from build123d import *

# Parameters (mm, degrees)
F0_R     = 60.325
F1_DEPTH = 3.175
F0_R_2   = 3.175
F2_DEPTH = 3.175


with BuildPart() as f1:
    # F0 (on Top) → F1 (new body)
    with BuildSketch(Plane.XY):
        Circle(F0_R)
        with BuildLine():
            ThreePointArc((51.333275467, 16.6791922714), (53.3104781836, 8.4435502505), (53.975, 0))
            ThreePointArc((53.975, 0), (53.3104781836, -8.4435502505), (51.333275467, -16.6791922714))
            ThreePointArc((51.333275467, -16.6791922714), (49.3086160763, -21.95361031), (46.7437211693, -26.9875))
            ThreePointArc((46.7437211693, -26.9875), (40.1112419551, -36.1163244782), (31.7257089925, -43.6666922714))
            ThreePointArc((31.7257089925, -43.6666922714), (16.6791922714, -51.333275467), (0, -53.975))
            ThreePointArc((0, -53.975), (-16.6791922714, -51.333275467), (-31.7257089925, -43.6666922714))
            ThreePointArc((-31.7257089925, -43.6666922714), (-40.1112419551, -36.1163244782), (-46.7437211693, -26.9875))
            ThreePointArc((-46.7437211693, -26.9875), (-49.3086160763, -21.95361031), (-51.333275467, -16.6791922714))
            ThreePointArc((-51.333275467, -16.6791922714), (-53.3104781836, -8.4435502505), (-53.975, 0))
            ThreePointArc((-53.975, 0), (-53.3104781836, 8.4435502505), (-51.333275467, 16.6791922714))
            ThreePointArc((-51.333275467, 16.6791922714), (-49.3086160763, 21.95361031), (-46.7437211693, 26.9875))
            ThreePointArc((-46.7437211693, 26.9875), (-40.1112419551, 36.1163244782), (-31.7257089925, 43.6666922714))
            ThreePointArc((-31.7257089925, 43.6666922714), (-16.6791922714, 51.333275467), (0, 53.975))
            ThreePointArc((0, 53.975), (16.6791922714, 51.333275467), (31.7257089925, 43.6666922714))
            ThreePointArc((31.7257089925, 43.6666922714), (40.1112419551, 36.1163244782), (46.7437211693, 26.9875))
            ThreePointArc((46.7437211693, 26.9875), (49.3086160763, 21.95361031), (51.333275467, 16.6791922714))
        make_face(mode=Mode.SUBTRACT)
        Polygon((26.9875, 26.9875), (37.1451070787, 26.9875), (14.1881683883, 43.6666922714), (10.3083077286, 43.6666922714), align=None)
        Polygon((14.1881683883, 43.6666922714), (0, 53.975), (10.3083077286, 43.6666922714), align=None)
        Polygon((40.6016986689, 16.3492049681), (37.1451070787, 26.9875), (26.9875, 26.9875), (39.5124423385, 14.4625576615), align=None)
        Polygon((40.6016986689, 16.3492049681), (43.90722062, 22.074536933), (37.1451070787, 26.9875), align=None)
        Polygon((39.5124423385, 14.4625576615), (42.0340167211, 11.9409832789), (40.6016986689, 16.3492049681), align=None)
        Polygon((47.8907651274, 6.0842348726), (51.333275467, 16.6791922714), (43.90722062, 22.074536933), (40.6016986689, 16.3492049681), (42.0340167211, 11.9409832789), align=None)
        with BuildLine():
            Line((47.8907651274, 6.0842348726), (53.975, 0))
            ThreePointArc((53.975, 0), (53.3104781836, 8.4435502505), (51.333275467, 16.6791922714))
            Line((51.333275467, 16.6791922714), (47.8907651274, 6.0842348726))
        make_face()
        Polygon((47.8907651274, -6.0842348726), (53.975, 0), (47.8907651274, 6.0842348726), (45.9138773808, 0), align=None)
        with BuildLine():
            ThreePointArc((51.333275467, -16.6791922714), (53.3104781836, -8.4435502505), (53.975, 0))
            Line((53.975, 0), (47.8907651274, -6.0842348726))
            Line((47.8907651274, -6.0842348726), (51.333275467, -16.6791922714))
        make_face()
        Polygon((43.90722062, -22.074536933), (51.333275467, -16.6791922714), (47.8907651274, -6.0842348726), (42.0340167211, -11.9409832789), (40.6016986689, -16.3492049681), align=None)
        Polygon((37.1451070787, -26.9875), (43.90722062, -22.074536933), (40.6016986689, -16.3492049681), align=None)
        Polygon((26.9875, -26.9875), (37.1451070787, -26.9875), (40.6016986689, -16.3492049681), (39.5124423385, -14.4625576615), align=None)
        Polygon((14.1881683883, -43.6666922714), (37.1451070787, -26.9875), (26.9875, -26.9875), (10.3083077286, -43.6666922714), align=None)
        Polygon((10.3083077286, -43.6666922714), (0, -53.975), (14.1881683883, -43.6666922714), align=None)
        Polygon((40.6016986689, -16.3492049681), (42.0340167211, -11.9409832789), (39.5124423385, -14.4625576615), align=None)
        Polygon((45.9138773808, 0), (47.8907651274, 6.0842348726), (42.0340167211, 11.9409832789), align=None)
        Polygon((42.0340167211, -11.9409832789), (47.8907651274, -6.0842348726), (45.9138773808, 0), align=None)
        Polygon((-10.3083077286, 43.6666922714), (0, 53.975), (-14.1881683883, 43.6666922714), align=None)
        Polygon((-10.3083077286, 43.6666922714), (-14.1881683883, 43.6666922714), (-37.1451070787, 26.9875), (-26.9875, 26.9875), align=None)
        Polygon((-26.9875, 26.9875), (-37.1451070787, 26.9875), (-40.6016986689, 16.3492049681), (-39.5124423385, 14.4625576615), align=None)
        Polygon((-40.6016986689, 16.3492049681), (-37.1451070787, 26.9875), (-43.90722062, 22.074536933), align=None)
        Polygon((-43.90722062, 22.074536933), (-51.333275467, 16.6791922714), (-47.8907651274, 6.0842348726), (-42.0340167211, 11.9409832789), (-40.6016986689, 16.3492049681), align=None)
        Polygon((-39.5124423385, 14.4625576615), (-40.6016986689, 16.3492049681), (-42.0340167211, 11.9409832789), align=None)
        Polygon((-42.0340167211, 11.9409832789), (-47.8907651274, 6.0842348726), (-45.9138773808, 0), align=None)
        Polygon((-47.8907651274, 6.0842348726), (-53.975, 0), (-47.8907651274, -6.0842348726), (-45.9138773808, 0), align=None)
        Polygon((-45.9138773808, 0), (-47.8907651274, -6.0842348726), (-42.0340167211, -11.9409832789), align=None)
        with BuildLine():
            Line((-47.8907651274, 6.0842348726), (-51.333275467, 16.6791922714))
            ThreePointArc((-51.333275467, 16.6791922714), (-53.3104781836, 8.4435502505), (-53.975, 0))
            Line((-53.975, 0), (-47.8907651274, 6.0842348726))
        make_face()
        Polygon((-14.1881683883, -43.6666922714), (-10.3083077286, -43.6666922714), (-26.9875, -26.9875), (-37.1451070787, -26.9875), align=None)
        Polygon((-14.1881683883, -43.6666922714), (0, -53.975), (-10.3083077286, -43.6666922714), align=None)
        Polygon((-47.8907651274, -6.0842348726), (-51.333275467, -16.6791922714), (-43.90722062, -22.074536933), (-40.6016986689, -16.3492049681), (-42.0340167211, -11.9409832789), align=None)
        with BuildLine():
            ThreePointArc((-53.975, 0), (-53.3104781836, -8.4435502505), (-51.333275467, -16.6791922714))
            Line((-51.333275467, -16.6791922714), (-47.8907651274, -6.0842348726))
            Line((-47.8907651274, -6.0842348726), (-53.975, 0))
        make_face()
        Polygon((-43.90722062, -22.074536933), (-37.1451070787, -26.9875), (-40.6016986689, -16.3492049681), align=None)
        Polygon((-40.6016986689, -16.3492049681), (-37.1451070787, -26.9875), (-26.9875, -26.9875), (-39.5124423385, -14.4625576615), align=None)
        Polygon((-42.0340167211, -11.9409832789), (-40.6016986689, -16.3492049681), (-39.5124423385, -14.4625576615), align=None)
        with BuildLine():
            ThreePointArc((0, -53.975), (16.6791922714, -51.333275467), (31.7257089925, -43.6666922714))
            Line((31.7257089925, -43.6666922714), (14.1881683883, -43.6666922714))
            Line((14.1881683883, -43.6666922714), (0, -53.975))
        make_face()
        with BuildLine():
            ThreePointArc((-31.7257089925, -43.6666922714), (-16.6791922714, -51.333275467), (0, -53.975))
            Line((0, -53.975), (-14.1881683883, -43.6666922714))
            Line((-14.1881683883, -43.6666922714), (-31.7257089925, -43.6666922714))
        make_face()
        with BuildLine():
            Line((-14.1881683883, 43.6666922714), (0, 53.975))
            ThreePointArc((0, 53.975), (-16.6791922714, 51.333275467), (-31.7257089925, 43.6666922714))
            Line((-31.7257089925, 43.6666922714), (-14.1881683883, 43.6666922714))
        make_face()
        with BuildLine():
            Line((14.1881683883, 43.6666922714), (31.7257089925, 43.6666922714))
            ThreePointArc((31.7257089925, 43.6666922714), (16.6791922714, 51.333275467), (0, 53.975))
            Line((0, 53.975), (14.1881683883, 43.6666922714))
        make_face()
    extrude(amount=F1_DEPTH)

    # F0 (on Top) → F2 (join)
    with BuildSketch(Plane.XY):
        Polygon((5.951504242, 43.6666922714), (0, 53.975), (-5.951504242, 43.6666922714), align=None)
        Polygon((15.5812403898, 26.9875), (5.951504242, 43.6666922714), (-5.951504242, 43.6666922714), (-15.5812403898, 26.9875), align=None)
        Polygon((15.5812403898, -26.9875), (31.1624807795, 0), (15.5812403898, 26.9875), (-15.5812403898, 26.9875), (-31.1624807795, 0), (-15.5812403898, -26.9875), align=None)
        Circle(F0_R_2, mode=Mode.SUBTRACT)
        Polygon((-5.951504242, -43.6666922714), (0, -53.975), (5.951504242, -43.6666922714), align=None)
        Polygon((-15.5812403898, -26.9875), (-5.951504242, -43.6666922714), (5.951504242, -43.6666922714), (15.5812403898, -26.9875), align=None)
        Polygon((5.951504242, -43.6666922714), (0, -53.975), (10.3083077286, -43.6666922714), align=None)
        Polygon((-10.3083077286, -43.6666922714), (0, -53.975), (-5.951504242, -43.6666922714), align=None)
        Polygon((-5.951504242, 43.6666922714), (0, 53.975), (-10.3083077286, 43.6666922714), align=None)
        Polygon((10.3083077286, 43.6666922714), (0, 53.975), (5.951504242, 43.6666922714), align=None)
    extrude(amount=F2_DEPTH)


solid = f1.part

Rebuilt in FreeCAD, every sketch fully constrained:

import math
import FreeCAD as App
import Part
import Sketcher
from FreeCAD import Vector
Q = App.Units.Quantity


def add_polygon(sketch, points):
    """Adds a closed chain of lines whose ends are joined by coincident constraints."""
    first, n = sketch.GeometryCount, len(points)
    for a, b in zip(points, points[1:] + points[:1]):
        sketch.addGeometry(Part.LineSegment(App.Vector(*a, 0), App.Vector(*b, 0)), False)
    for i in range(n):
        sketch.addConstraint(Sketcher.Constraint("Coincident", first + i, 2, first + (i + 1) % n, 1))

doc = App.newDocument("Part")
body = doc.addObject("PartDesign::Body", "Body")

# Sketch on XY plane
sketch1 = doc.addObject("Sketcher::SketchObject", "Sketch")
body.addObject(sketch1)
sketch1.AttachmentSupport = (doc.XY_Plane, [""])
sketch1.MapMode = "FlatFace"
sketch1.addGeometry(Part.Circle(Vector(0, 0, 0), Vector(0, 0, 1), 60), False)  # 0
sketch1.addGeometry(Part.LineSegment(Vector(-37, -27, 0), Vector(-14, -44, 0)), False)  # 1
sketch1.addGeometry(Part.LineSegment(Vector(-14, -44, 0), Vector(-32, -44, 0)), False)  # 2
sketch1.addGeometry(Part.ArcOfCircle(Part.Circle(Vector(0, 0, 0), Vector(0, 0, 1), 54), math.radians(-150), math.radians(-126)), False)  # 3
sketch1.addGeometry(Part.ArcOfCircle(Part.Circle(Vector(0, 0, 0), Vector(0, 0, 1), 54), math.radians(-162), math.radians(-150)), False)  # 4
sketch1.addGeometry(Part.LineSegment(Vector(-51, -17, 0), Vector(-44, -22, 0)), False)  # 5
sketch1.addGeometry(Part.LineSegment(Vector(-44, -22, 0), Vector(-37, -27, 0)), False)  # 6
sketch1.addGeometry(Part.ArcOfCircle(Part.Circle(Vector(0, 0, 0), Vector(0, 0, 1), 54), math.radians(-54), math.radians(-30)), False)  # 7
sketch1.addGeometry(Part.LineSegment(Vector(32, -44, 0), Vector(14, -44, 0)), False)  # 8
sketch1.addGeometry(Part.LineSegment(Vector(14, -44, 0), Vector(37, -27, 0)), False)  # 9
sketch1.addGeometry(Part.LineSegment(Vector(37, -27, 0), Vector(44, -22, 0)), False)  # 10
sketch1.addGeometry(Part.LineSegment(Vector(44, -22, 0), Vector(51, -17, 0)), False)  # 11
sketch1.addGeometry(Part.ArcOfCircle(Part.Circle(Vector(0, 0, 0), Vector(0, 0, 1), 54), math.radians(-30), math.radians(-18)), False)  # 12
add_polygon(sketch1, [(-42, 12), (0, 54), (42, 12), (46, 0), (42, -12), (0, -54), (-42, -12), (-46, 0)])  # lines 13-20
sketch1.addGeometry(Part.ArcOfCircle(Part.Circle(Vector(0, 0, 0), Vector(0, 0, 1), 54), math.radians(126), math.radians(150)), False)  # 21
sketch1.addGeometry(Part.LineSegment(Vector(-32, 44, 0), Vector(-14, 44, 0)), False)  # 22
sketch1.addGeometry(Part.LineSegment(Vector(-14, 44, 0), Vector(-37, 27, 0)), False)  # 23
sketch1.addGeometry(Part.LineSegment(Vector(-37, 27, 0), Vector(-44, 22, 0)), False)  # 24
sketch1.addGeometry(Part.LineSegment(Vector(-44, 22, 0), Vector(-51, 17, 0)), False)  # 25
sketch1.addGeometry(Part.ArcOfCircle(Part.Circle(Vector(0, 0, 0), Vector(0, 0, 1), 54), math.radians(150), math.radians(162)), False)  # 26
sketch1.addGeometry(Part.LineSegment(Vector(37, 27, 0), Vector(14, 44, 0)), False)  # 27
sketch1.addGeometry(Part.LineSegment(Vector(14, 44, 0), Vector(32, 44, 0)), False)  # 28
sketch1.addGeometry(Part.ArcOfCircle(Part.Circle(Vector(0, 0, 0), Vector(0, 0, 1), 54), math.radians(30), math.radians(54)), False)  # 29
sketch1.addGeometry(Part.ArcOfCircle(Part.Circle(Vector(0, 0, 0), Vector(0, 0, 1), 54), math.radians(18), math.radians(30)), False)  # 30
sketch1.addGeometry(Part.LineSegment(Vector(51, 17, 0), Vector(44, 22, 0)), False)  # 31
sketch1.addGeometry(Part.LineSegment(Vector(44, 22, 0), Vector(37, 27, 0)), False)  # 32
sketch1.addConstraint([
    Sketcher.Constraint("Coincident", 1, 2, 2, 1),
    Sketcher.Constraint("Coincident", 2, 2, 3, 2),
    Sketcher.Constraint("Tangent", 3, 1, 4, 2),
    Sketcher.Constraint("Coincident", 4, 1, 5, 1),
    Sketcher.Constraint("Coincident", 5, 2, 6, 1),
    Sketcher.Constraint("Coincident", 6, 2, 1, 1),
    Sketcher.Constraint("Coincident", 7, 1, 8, 1),
    Sketcher.Constraint("Coincident", 8, 2, 9, 1),
    Sketcher.Constraint("Coincident", 9, 2, 10, 1),
    Sketcher.Constraint("Coincident", 10, 2, 11, 1),
    Sketcher.Constraint("Coincident", 11, 2, 12, 2),
    Sketcher.Constraint("Tangent", 12, 1, 7, 2),
    Sketcher.Constraint("Coincident", 21, 1, 22, 1),
    Sketcher.Constraint("Coincident", 22, 2, 23, 1),
    Sketcher.Constraint("Coincident", 23, 2, 24, 1),
    Sketcher.Constraint("Coincident", 24, 2, 25, 1),
    Sketcher.Constraint("Coincident", 25, 2, 26, 2),
    Sketcher.Constraint("Tangent", 26, 1, 21, 2),
    Sketcher.Constraint("Coincident", 27, 2, 28, 1),
    Sketcher.Constraint("Coincident", 28, 2, 29, 2),
    Sketcher.Constraint("Tangent", 29, 1, 30, 2),
    Sketcher.Constraint("Coincident", 30, 1, 31, 1),
    Sketcher.Constraint("Coincident", 31, 2, 32, 1),
    Sketcher.Constraint("Coincident", 32, 2, 27, 1),
    Sketcher.Constraint("Horizontal", 2),
    Sketcher.Constraint("Horizontal", 8),
    Sketcher.Constraint("Horizontal", 22),
    Sketcher.Constraint("Horizontal", 28),
    Sketcher.Constraint("Coincident", 0, 3, -1, 1),
    Sketcher.Constraint("Coincident", 3, 3, -1, 1),
    Sketcher.Constraint("Coincident", 7, 3, -1, 1),
    Sketcher.Constraint("Coincident", 21, 3, -1, 1),
    Sketcher.Constraint("Coincident", 29, 3, -1, 1),
    Sketcher.Constraint("Equal", 3, 4),
    Sketcher.Constraint("Equal", 4, 7),
    Sketcher.Constraint("Equal", 7, 12),
    Sketcher.Constraint("Equal", 12, 21),
    Sketcher.Constraint("Equal", 21, 26),
    Sketcher.Constraint("Equal", 26, 29),
    Sketcher.Constraint("Equal", 29, 30),
    Sketcher.Constraint("Symmetric", 13, 2, 17, 2, -1, 1),
    Sketcher.Constraint("Symmetric", 14, 2, 18, 2, -1, 1),
    Sketcher.Constraint("Symmetric", 15, 2, 19, 2, -1, 1),
    Sketcher.Constraint("Symmetric", 16, 2, 20, 2, -1, 1),
    Sketcher.Constraint("Symmetric", 8, 2, 22, 2, -1, 1),
    Sketcher.Constraint("Symmetric", 9, 2, 23, 2, -1, 1),
    Sketcher.Constraint("Symmetric", 10, 2, 24, 2, -1, 1),
    Sketcher.Constraint("Symmetric", 1, 2, 27, 2, -1, 1),
    Sketcher.Constraint("Symmetric", 5, 2, 31, 2, -1, 1),
    Sketcher.Constraint("Symmetric", 6, 2, 32, 2, -1, 1),
    Sketcher.Constraint("Symmetric", 1, 2, 8, 2, -2),
    Sketcher.Constraint("Symmetric", 6, 2, 9, 2, -2),
    Sketcher.Constraint("Symmetric", 5, 2, 10, 2, -2),
    Sketcher.Constraint("Symmetric", 16, 2, 18, 2, -2),
    Sketcher.Constraint("PointOnObject", 13, 2, -2),
    Sketcher.Constraint("PointOnObject", 15, 2, -1),
    Sketcher.Constraint("Parallel", 1, 5),
    Sketcher.Constraint("Parallel", 5, 6),
    Sketcher.Constraint("Parallel", 10, 11),
    Sketcher.Constraint("Perpendicular", 13, 14),
    Sketcher.Constraint("Parallel", 24, 25),
    Sketcher.Constraint("Parallel", 27, 31),
    Sketcher.Constraint("Horizontal", 3, 1, 6, 2),
    Sketcher.Constraint("Horizontal", 9, 2, 12, 1),
    Sketcher.Constraint("Horizontal", 23, 2, 26, 1),
    Sketcher.Constraint("Horizontal", 26, 1, 29, 1),
    Sketcher.Constraint("Diameter", 0, Q("4.75 in")),
    Sketcher.Constraint("Angle", 1, Q("-36 deg")),
    Sketcher.Constraint("Angle", 15, Q("-72 deg")),
    Sketcher.Constraint("Radius", 3, Q("2.125 in")),
    Sketcher.Constraint("DistanceY", 3, 1, -1, 1, Q("1.0625 in")),
    Sketcher.Constraint("DistanceY", -1, 1, 13, 2, Q("2.125 in")),
    Sketcher.Constraint("DistanceY", 2, 2, 4, 1, Q("1.0625 in")),
    Sketcher.Constraint("DistanceX", 2, 2, 2, 1, 17.537541),
    Sketcher.Constraint("DistanceX", 3, 1, 5, 2, 2.836501),
    Sketcher.Constraint("DistanceX", 15, 2, 11, 2, 5.419398),
])
pad1 = doc.addObject("PartDesign::Pad", "Pad")
body.addObject(pad1)
pad1.Profile = sketch1
pad1.Length = Q("0.125 in")

# Sketch on XY plane
sketch2 = doc.addObject("Sketcher::SketchObject", "Sketch001")
body.addObject(sketch2)
sketch2.AttachmentSupport = (doc.XY_Plane, [""])
sketch2.MapMode = "FlatFace"
add_polygon(sketch2, [(0, 54), (-10.3, 43.7), (-6, 43.7), (-15.6, 27), (-31.2, 0), (-15.6, -27), (-6, -43.7), (-10.3, -43.7), (0, -54), (10.3, -43.7), (6, -43.7), (15.6, -27), (31.2, 0), (15.6, 27), (6, 43.7), (10.3, 43.7)])  # lines 0-15
sketch2.addGeometry(Part.Circle(Vector(0, 0, 0), Vector(0, 0, 1), 3.2), False)  # 16
sketch2.addConstraint([
    Sketcher.Constraint("Horizontal", 1),
    Sketcher.Constraint("Horizontal", 6),
    Sketcher.Constraint("Horizontal", 9),
    Sketcher.Constraint("Horizontal", 14),
    Sketcher.Constraint("Coincident", 16, 3, -1, 1),
    Sketcher.Constraint("Symmetric", 0, 2, 8, 2, -1, 1),
    Sketcher.Constraint("Symmetric", 2, 2, 10, 2, -1, 1),
    Sketcher.Constraint("Symmetric", 3, 2, 11, 2, -1, 1),
    Sketcher.Constraint("Symmetric", 4, 2, 12, 2, -1, 1),
    Sketcher.Constraint("Symmetric", 5, 2, 13, 2, -1, 1),
    Sketcher.Constraint("Symmetric", 7, 2, 15, 2, -1, 1),
    Sketcher.Constraint("Symmetric", 6, 2, 8, 2, -2),
    Sketcher.Constraint("Symmetric", 4, 2, 10, 2, -2),
    Sketcher.Constraint("PointOnObject", 3, 2, -1),
    Sketcher.Constraint("PointOnObject", 7, 2, -2),
    Sketcher.Constraint("Parallel", 2, 3),
    Sketcher.Constraint("Parallel", 4, 5),
    Sketcher.Constraint("Perpendicular", 0, 7),
    Sketcher.Constraint("Parallel", 3, 10),
    Sketcher.Constraint("Perpendicular", 8, 15),
    Sketcher.Constraint("Diameter", 16, Q("0.25 in")),
    Sketcher.Constraint("Angle", 2, Q("-120 deg")),
    Sketcher.Constraint("DistanceY", -1, 1, 2, 2, Q("1.0625 in")),
    Sketcher.Constraint("DistanceY", 7, 2, -1, 1, Q("2.125 in")),
    Sketcher.Constraint("Distance", 0, 14.578149),
    Sketcher.Constraint("DistanceX", 1, 1, 1, 2, 4.356803),
])
pad2 = doc.addObject("PartDesign::Pad", "Pad001")
body.addObject(pad2)
pad2.Profile = sketch2
pad2.Length = Q("0.125 in")

doc.recompute()
